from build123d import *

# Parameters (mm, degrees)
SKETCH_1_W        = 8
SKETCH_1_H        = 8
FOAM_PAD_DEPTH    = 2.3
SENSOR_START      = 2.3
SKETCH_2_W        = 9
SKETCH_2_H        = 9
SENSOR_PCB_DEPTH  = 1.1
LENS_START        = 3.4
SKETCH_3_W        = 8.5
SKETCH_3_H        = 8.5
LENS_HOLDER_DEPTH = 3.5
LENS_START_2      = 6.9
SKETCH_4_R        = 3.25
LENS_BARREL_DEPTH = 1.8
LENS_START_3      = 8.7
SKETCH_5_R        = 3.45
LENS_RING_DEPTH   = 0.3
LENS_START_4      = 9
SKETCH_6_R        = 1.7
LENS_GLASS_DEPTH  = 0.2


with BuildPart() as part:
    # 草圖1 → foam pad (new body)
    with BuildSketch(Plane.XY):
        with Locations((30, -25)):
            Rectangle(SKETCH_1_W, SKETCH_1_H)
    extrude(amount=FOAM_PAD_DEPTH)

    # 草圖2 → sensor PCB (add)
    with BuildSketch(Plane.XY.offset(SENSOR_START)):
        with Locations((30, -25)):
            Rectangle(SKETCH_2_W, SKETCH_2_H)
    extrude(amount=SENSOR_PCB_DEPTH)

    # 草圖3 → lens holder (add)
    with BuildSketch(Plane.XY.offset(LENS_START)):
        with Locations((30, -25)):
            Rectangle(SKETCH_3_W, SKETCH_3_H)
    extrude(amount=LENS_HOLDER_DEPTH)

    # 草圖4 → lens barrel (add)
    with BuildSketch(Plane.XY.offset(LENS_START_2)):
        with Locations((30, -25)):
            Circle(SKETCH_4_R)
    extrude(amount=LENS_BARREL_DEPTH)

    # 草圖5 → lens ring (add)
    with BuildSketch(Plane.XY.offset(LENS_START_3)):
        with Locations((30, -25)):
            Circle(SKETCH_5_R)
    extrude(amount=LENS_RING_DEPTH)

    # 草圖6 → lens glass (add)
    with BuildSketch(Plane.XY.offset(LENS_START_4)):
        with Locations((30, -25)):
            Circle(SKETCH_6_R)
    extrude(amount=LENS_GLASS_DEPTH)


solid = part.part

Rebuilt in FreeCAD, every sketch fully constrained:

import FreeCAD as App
import Part
import Sketcher

V = App.Vector
Q = App.Units.Quantity

doc = App.newDocument("Part")
body = doc.addObject("PartDesign::Body", "Body")

# Sketch on XY plane
sketch1 = doc.addObject("Sketcher::SketchObject", "Sketch")
body.addObject(sketch1)
sketch1.AttachmentSupport = (doc.XY_Plane, [""])
sketch1.MapMode = "FlatFace"
sketch1.addGeometry(Part.LineSegment(V(26, -21, 0), V(26, -29, 0)), False)
sketch1.addGeometry(Part.LineSegment(V(26, -29, 0), V(34, -29, 0)), False)
sketch1.addGeometry(Part.LineSegment(V(34, -29, 0), V(34, -21, 0)), False)
sketch1.addGeometry(Part.LineSegment(V(34, -21, 0), V(26, -21, 0)), False)
sketch1.addConstraint(Sketcher.Constraint("Coincident", 0, 2, 1, 1))
sketch1.addConstraint(Sketcher.Constraint("Coincident", 1, 2, 2, 1))
sketch1.addConstraint(Sketcher.Constraint("Coincident", 2, 2, 3, 1))
sketch1.addConstraint(Sketcher.Constraint("Coincident", 3, 2, 0, 1))
sketch1.addConstraint(Sketcher.Constraint("Vertical", 0))
sketch1.addConstraint(Sketcher.Constraint("Horizontal", 1))
sketch1.addConstraint(Sketcher.Constraint("Vertical", 2))
sketch1.addConstraint(Sketcher.Constraint("Horizontal", 3))
sketch1.addConstraint(Sketcher.Constraint("Equal", 3, 0))
sketch1.addConstraint(Sketcher.Constraint("DistanceX", 1, 1, 1, 2, Q("8 mm")))
sketch1.addConstraint(Sketcher.Constraint("DistanceX", -1, 1, 0, 2, Q("26 mm")))
sketch1.addConstraint(Sketcher.Constraint("DistanceY", 0, 2, -1, 1, Q("29 mm")))
pad1 = doc.addObject("PartDesign::Pad", "Pad")
body.addObject(pad1)
pad1.Profile = sketch1
pad1.Length = 2.3

# Sketch on XY plane
sketch2 = doc.addObject("Sketcher::SketchObject", "Sketch001")
body.addObject(sketch2)
sketch2.AttachmentSupport = (doc.XY_Plane, [""])
sketch2.MapMode = "FlatFace"
sketch2.AttachmentOffset = App.Placement(V(0, 0, 2.3), App.Rotation())
sketch2.addGeometry(Part.LineSegment(V(25.5, -20.5, 0), V(25.5, -29.5, 0)), False)
sketch2.addGeometry(Part.LineSegment(V(25.5, -29.5, 0), V(34.5, -29.5, 0)), False)
sketch2.addGeometry(Part.LineSegment(V(34.5, -29.5, 0), V(34.5, -20.5, 0)), False)
sketch2.addGeometry(Part.LineSegment(V(34.5, -20.5, 0), V(25.5, -20.5, 0)), False)
sketch2.addConstraint(Sketcher.Constraint("Coincident", 0, 2, 1, 1))
sketch2.addConstraint(Sketcher.Constraint("Coincident", 1, 2, 2, 1))
sketch2.addConstraint(Sketcher.Constraint("Coincident", 2, 2, 3, 1))
sketch2.addConstraint(Sketcher.Constraint("Coincident", 3, 2, 0, 1))
sketch2.addConstraint(Sketcher.Constraint("Vertical", 0))
sketch2.addConstraint(Sketcher.Constraint("Horizontal", 1))
sketch2.addConstraint(Sketcher.Constraint("Vertical", 2))
sketch2.addConstraint(Sketcher.Constraint("Horizontal", 3))
sketch2.addConstraint(Sketcher.Constraint("Equal", 3, 0))
sketch2.addConstraint(Sketcher.Constraint("DistanceX", 1, 1, 1, 2, Q("9 mm")))
sketch2.addConstraint(Sketcher.Constraint("DistanceX", -1, 1, 0, 2, Q("25.5 mm")))
sketch2.addConstraint(Sketcher.Constraint("DistanceY", 0, 2, -1, 1, Q("29.5 mm")))
pad2 = doc.addObject("PartDesign::Pad", "Pad001")
body.addObject(pad2)
pad2.Profile = sketch2
pad2.Length = 1.1

# Sketch on XY plane
sketch3 = doc.addObject("Sketcher::SketchObject", "Sketch002")
body.addObject(sketch3)
sketch3.AttachmentSupport = (doc.XY_Plane, [""])
sketch3.MapMode = "FlatFace"
sketch3.AttachmentOffset = App.Placement(V(0, 0, 3.4), App.Rotation())
sketch3.addGeometry(Part.LineSegment(V(25.75, -20.75, 0), V(25.75, -29.25, 0)), False)
sketch3.addGeometry(Part.LineSegment(V(25.75, -29.25, 0), V(34.25, -29.25, 0)), False)
sketch3.addGeometry(Part.LineSegment(V(34.25, -29.25, 0), V(34.25, -20.75, 0)), False)
sketch3.addGeometry(Part.LineSegment(V(34.25, -20.75, 0), V(25.75, -20.75, 0)), False)
sketch3.addConstraint(Sketcher.Constraint("Coincident", 0, 2, 1, 1))
sketch3.addConstraint(Sketcher.Constraint("Coincident", 1, 2, 2, 1))
sketch3.addConstraint(Sketcher.Constraint("Coincident", 2, 2, 3, 1))
sketch3.addConstraint(Sketcher.Constraint("Coincident", 3, 2, 0, 1))
sketch3.addConstraint(Sketcher.Constraint("Vertical", 0))
sketch3.addConstraint(Sketcher.Constraint("Horizontal", 1))
sketch3.addConstraint(Sketcher.Constraint("Vertical", 2))
sketch3.addConstraint(Sketcher.Constraint("Horizontal", 3))
sketch3.addConstraint(Sketcher.Constraint("Equal", 3, 0))
sketch3.addConstraint(Sketcher.Constraint("DistanceX", 1, 1, 1, 2, Q("8.5 mm")))
sketch3.addConstraint(Sketcher.Constraint("DistanceX", -1, 1, 0, 2, Q("25.75 mm")))
sketch3.addConstraint(Sketcher.Constraint("DistanceY", 0, 2, -1, 1, Q("29.25 mm")))
pad3 = doc.addObject("PartDesign::Pad", "Pad002")
body.addObject(pad3)
pad3.Profile = sketch3
pad3.Length = 3.5

# Sketch on XY plane
sketch4 = doc.addObject("Sketcher::SketchObject", "Sketch003")
body.addObject(sketch4)
sketch4.AttachmentSupport = (doc.XY_Plane, [""])
sketch4.MapMode = "FlatFace"
sketch4.AttachmentOffset = App.Placement(V(0, 0, 6.9), App.Rotation())
sketch4.addGeometry(Part.Circle(V(30, -25, 0), V(0, 0, 1), 3.25), False)
sketch4.addConstraint(Sketcher.Constraint("Diameter", 0, Q("6.5 mm")))
sketch4.addConstraint(Sketcher.Constraint("DistanceX", -1, 1, 0, 3, Q("30 mm")))
sketch4.addConstraint(Sketcher.Constraint("DistanceY", 0, 3, -1, 1, Q("25 mm")))
pad4 = doc.addObject("PartDesign::Pad", "Pad003")
body.addObject(pad4)
pad4.Profile = sketch4
pad4.Length = 1.8

# Sketch on XY plane
sketch5 = doc.addObject("Sketcher::SketchObject", "Sketch004")
body.addObject(sketch5)
sketch5.AttachmentSupport = (doc.XY_Plane, [""])
sketch5.MapMode = "FlatFace"
sketch5.AttachmentOffset = App.Placement(V(0, 0, 8.7), App.Rotation())
sketch5.addGeometry(Part.Circle(V(30, -25, 0), V(0, 0, 1), 3.45), False)
sketch5.addConstraint(Sketcher.Constraint("Diameter", 0, Q("6.9 mm")))
sketch5.addConstraint(Sketcher.Constraint("DistanceX", -1, 1, 0, 3, Q("30 mm")))
sketch5.addConstraint(Sketcher.Constraint("DistanceY", 0, 3, -1, 1, Q("25 mm")))
pad5 = doc.addObject("PartDesign::Pad", "Pad004")
body.addObject(pad5)
pad5.Profile = sketch5
pad5.Length = 0.3

# Sketch on XY plane
sketch6 = doc.addObject("Sketcher::SketchObject", "Sketch005")
body.addObject(sketch6)
sketch6.AttachmentSupport = (doc.XY_Plane, [""])
sketch6.MapMode = "FlatFace"
sketch6.AttachmentOffset = App.Placement(V(0, 0, 9), App.Rotation())
sketch6.addGeometry(Part.Circle(V(30, -25, 0), V(0, 0, 1), 1.7), False)
sketch6.addConstraint(Sketcher.Constraint("Diameter", 0, Q("3.4 mm")))
sketch6.addConstraint(Sketcher.Constraint("DistanceX", -1, 1, 0, 3, Q("30 mm")))
sketch6.addConstraint(Sketcher.Constraint("DistanceY", 0, 3, -1, 1, Q("25 mm")))
pad6 = doc.addObject("PartDesign::Pad", "Pad005")
body.addObject(pad6)
pad6.Profile = sketch6
pad6.Length = 0.2

doc.recompute()
